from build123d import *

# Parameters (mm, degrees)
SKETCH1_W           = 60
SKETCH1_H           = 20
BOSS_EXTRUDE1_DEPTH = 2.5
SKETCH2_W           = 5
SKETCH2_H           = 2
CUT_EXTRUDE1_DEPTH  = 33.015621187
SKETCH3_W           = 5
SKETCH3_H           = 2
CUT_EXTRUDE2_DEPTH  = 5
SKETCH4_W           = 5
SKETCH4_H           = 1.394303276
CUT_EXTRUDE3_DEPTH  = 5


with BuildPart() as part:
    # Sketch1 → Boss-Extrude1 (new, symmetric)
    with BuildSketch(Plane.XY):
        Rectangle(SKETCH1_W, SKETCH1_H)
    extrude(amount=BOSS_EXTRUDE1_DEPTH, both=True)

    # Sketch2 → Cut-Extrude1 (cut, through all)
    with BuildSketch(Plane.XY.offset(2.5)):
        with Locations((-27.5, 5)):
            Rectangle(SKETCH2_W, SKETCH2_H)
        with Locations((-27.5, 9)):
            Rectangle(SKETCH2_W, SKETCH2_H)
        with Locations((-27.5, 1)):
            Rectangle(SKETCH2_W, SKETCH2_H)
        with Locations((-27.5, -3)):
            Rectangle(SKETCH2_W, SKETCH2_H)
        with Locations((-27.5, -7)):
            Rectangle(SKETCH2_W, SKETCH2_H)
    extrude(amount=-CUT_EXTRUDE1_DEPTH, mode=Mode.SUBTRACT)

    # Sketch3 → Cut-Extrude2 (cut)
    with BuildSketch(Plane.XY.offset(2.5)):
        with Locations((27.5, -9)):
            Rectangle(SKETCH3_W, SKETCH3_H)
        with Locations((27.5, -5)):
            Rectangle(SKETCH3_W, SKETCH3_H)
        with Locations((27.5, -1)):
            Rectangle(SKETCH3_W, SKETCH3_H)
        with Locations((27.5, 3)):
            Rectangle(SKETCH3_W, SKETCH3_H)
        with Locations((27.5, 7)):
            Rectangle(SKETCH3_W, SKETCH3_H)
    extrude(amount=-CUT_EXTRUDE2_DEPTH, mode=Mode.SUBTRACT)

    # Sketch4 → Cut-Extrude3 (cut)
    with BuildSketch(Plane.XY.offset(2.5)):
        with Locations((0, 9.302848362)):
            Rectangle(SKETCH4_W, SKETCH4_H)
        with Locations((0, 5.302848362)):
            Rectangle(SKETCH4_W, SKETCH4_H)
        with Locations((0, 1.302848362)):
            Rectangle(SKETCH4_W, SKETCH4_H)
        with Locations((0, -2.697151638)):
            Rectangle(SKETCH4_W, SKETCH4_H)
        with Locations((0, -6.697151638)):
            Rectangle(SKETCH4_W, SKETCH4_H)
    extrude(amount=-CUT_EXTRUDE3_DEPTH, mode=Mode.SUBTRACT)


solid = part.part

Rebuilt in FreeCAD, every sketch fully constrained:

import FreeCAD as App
import Part
import Sketcher
from FreeCAD import Vector
Q = App.Units.Quantity


def add_polygon(sketch, points):
    """Adds a closed chain of lines whose ends are joined by coincident constraints."""
    first, n = sketch.GeometryCount, len(points)
    for a, b in zip(points, points[1:] + points[:1]):
        sketch.addGeometry(Part.LineSegment(App.Vector(*a, 0), App.Vector(*b, 0)), False)
    for i in range(n):
        sketch.addConstraint(Sketcher.Constraint("Coincident", first + i, 2, first + (i + 1) % n, 1))

doc = App.newDocument("Part")
params = doc.addObject("Spreadsheet::Sheet", "Params")
for row, (alias, value) in enumerate([
    ("sketch1_width", "60 mm"),
    ("sketch1_height", "20 mm"),
    ("pad1_length", "5 mm"),
    ("sketch2_width", "5 mm"),
    ("sketch2_height", "2 mm"),
    ("sketch3_width", "5 mm"),
    ("sketch3_height", "2 mm"),
    ("pocket2_length", "5 mm"),
    ("sketch4_width", "5 mm"),
    ("pocket3_length", "5 mm"),
], start=1):
    params.set(f"A{row}", alias)
    params.set(f"B{row}", "=" + value)
    params.setAlias(f"B{row}", alias)

body = doc.addObject("PartDesign::Body", "Body")

# Sketch on XY plane
sketch1 = doc.addObject("Sketcher::SketchObject", "Sketch")
body.addObject(sketch1)
sketch1.AttachmentSupport = (doc.XY_Plane, [""])
sketch1.MapMode = "FlatFace"
add_polygon(sketch1, [(-30, 10), (-30, -10), (30, -10), (30, 10)])  # lines 0-3
sketch1.addConstraint([
    Sketcher.Constraint("Vertical", 0),
    Sketcher.Constraint("Horizontal", 1),
    Sketcher.Constraint("Vertical", 2),
    Sketcher.Constraint("Horizontal", 3),
    Sketcher.Constraint("Symmetric", 0, 2, 2, 2, -1, 1),
    Sketcher.Constraint("DistanceX", 1, 1, 1, 2, Q("60 mm")),
    Sketcher.Constraint("DistanceY", 0, 2, 0, 1, Q("20 mm")),
])
sketch1.setExpression("Constraints[9]", "Params.sketch1_width")
sketch1.setExpression("Constraints[10]", "Params.sketch1_height")
pad1 = doc.addObject("PartDesign::Pad", "Pad")
body.addObject(pad1)
pad1.Profile = sketch1
pad1.setExpression("Length", "Params.pad1_length")
pad1.Midplane = True

# Sketch on XY plane
sketch2 = doc.addObject("Sketcher::SketchObject", "Sketch001")
body.addObject(sketch2)
sketch2.AttachmentSupport = (doc.XY_Plane, [""])
sketch2.MapMode = "FlatFace"
sketch2.AttachmentOffset = App.Placement(Vector(0, 0, 2.5), App.Rotation())
add_polygon(sketch2, [(-30, 6), (-30, 4), (-25, 4), (-25, 6)])  # lines 0-3
add_polygon(sketch2, [(-30, 10), (-30, 8), (-25, 8), (-25, 10)])  # lines 4-7
add_polygon(sketch2, [(-30, 2), (-30, 0), (-25, 0), (-25, 2)])  # lines 8-11
add_polygon(sketch2, [(-30, -2), (-30, -4), (-25, -4), (-25, -2)])  # lines 12-15
add_polygon(sketch2, [(-30, -6), (-30, -8), (-25, -8), (-25, -6)])  # lines 16-19
sketch2.addConstraint([
    Sketcher.Constraint("Vertical", 0),
    Sketcher.Constraint("Horizontal", 1),
    Sketcher.Constraint("Vertical", 2),
    Sketcher.Constraint("Horizontal", 3),
    Sketcher.Constraint("Vertical", 4),
    Sketcher.Constraint("Horizontal", 5),
    Sketcher.Constraint("Vertical", 6),
    Sketcher.Constraint("Horizontal", 7),
    Sketcher.Constraint("Vertical", 8),
    Sketcher.Constraint("Horizontal", 9),
    Sketcher.Constraint("Vertical", 10),
    Sketcher.Constraint("Horizontal", 11),
    Sketcher.Constraint("Vertical", 12),
    Sketcher.Constraint("Horizontal", 13),
    Sketcher.Constraint("Vertical", 14),
    Sketcher.Constraint("Horizontal", 15),
    Sketcher.Constraint("Vertical", 16),
    Sketcher.Constraint("Horizontal", 17),
    Sketcher.Constraint("Vertical", 18),
    Sketcher.Constraint("Horizontal", 19),
    Sketcher.Constraint("Symmetric", 0, 2, 12, 2, -1),
    Sketcher.Constraint("Symmetric", 10, 2, 14, 2, -1),
    Sketcher.Constraint("Symmetric", 4, 2, 16, 2, -1),
    Sketcher.Constraint("Symmetric", 2, 2, 18, 2, -1),
    Sketcher.Constraint("PointOnObject", 8, 2, -1),
    Sketcher.Constraint("Vertical", 3, 2, 4, 2),
    Sketcher.Constraint("Vertical", 2, 2, 5, 2),
    Sketcher.Constraint("Vertical", 7, 2, 8, 2),
    Sketcher.Constraint("Vertical", 6, 2, 9, 2),
    Sketcher.Constraint("Equal", 2, 4),
    Sketcher.Constraint("Equal", 6, 8),
    Sketcher.Constraint("Equal", 10, 12),
    Sketcher.Constraint("Equal", 14, 16),
    Sketcher.Constraint("DistanceX", 1, 1, 1, 2, Q("5 mm")),
    Sketcher.Constraint("DistanceY", 0, 2, 0, 1, Q("2 mm")),
    Sketcher.Constraint("DistanceX", 0, 2, -1, 1, Q("30 mm")),
])
sketch2.setExpression("Constraints[53]", "Params.sketch2_width")
sketch2.setExpression("Constraints[54]", "Params.sketch2_height")
pocket1 = doc.addObject("PartDesign::Pocket", "Pocket")
body.addObject(pocket1)
pocket1.Profile = sketch2
pocket1.Type = "ThroughAll"

# Sketch on XY plane
sketch3 = doc.addObject("Sketcher::SketchObject", "Sketch002")
body.addObject(sketch3)
sketch3.AttachmentSupport = (doc.XY_Plane, [""])
sketch3.MapMode = "FlatFace"
sketch3.AttachmentOffset = App.Placement(Vector(0, 0, 2.5), App.Rotation())
add_polygon(sketch3, [(25, -8), (25, -10), (30, -10), (30, -8)])  # lines 0-3
add_polygon(sketch3, [(25, -4), (25, -6), (30, -6), (30, -4)])  # lines 4-7
add_polygon(sketch3, [(25, 0), (25, -2), (30, -2), (30, 0)])  # lines 8-11
add_polygon(sketch3, [(25, 4), (25, 2), (30, 2), (30, 4)])  # lines 12-15
add_polygon(sketch3, [(25, 8), (25, 6), (30, 6), (30, 8)])  # lines 16-19
sketch3.addConstraint([
    Sketcher.Constraint("Vertical", 0),
    Sketcher.Constraint("Horizontal", 1),
    Sketcher.Constraint("Vertical", 2),
    Sketcher.Constraint("Horizontal", 3),
    Sketcher.Constraint("Vertical", 4),
    Sketcher.Constraint("Horizontal", 5),
    Sketcher.Constraint("Vertical", 6),
    Sketcher.Constraint("Horizontal", 7),
    Sketcher.Constraint("Vertical", 8),
    Sketcher.Constraint("Horizontal", 9),
    Sketcher.Constraint("Vertical", 10),
    Sketcher.Constraint("Horizontal", 11),
    Sketcher.Constraint("Vertical", 12),
    Sketcher.Constraint("Horizontal", 13),
    Sketcher.Constraint("Vertical", 14),
    Sketcher.Constraint("Horizontal", 15),
    Sketcher.Constraint("Vertical", 16),
    Sketcher.Constraint("Horizontal", 17),
    Sketcher.Constraint("Vertical", 18),
    Sketcher.Constraint("Horizontal", 19),
    Sketcher.Constraint("Symmetric", 8, 2, 12, 2, -1),
    Sketcher.Constraint("Symmetric", 6, 2, 14, 2, -1),
    Sketcher.Constraint("Symmetric", 4, 2, 16, 2, -1),
    Sketcher.Constraint("Symmetric", 2, 2, 18, 2, -1),
    Sketcher.Constraint("PointOnObject", 10, 2, -1),
    Sketcher.Constraint("Vertical", 3, 2, 4, 2),
    Sketcher.Constraint("Vertical", 2, 2, 5, 2),
    Sketcher.Constraint("Vertical", 7, 2, 8, 2),
    Sketcher.Constraint("Vertical", 6, 2, 9, 2),
    Sketcher.Constraint("Equal", 2, 4),
    Sketcher.Constraint("Equal", 6, 8),
    Sketcher.Constraint("Equal", 10, 12),
    Sketcher.Constraint("Equal", 14, 16),
    Sketcher.Constraint("DistanceX", 1, 1, 1, 2, Q("5 mm")),
    Sketcher.Constraint("DistanceY", 0, 2, 0, 1, Q("2 mm")),
    Sketcher.Constraint("DistanceX", -1, 1, 0, 2, Q("25 mm")),
])
sketch3.setExpression("Constraints[53]", "Params.sketch3_width")
sketch3.setExpression("Constraints[54]", "Params.sketch3_height")
pocket2 = doc.addObject("PartDesign::Pocket", "Pocket001")
body.addObject(pocket2)
pocket2.Profile = sketch3
pocket2.setExpression("Length", "Params.pocket2_length")

# Sketch on XY plane
sketch4 = doc.addObject("Sketcher::SketchObject", "Sketch003")
body.addObject(sketch4)
sketch4.AttachmentSupport = (doc.XY_Plane, [""])
sketch4.MapMode = "FlatFace"
sketch4.AttachmentOffset = App.Placement(Vector(0, 0, 2.5), App.Rotation())
add_polygon(sketch4, [(-2.5, 10), (-2.5, 8.6), (2.5, 8.6), (2.5, 10)])  # lines 0-3
add_polygon(sketch4, [(-2.5, 6), (-2.5, 4.6), (2.5, 4.6), (2.5, 6)])  # lines 4-7
add_polygon(sketch4, [(-2.5, 2), (-2.5, 0.6), (2.5, 0.6), (2.5, 2)])  # lines 8-11
add_polygon(sketch4, [(-2.5, -2), (-2.5, -3.4), (2.5, -3.4), (2.5, -2)])  # lines 12-15
add_polygon(sketch4, [(-2.5, -6), (-2.5, -7.4), (2.5, -7.4), (2.5, -6)])  # lines 16-19
sketch4.addConstraint([
    Sketcher.Constraint("Vertical", 0),
    Sketcher.Constraint("Horizontal", 1),
    Sketcher.Constraint("Vertical", 2),
    Sketcher.Constraint("Horizontal", 3),
    Sketcher.Constraint("Vertical", 4),
    Sketcher.Constraint("Horizontal", 5),
    Sketcher.Constraint("Vertical", 6),
    Sketcher.Constraint("Horizontal", 7),
    Sketcher.Constraint("Vertical", 8),
    Sketcher.Constraint("Horizontal", 9),
    Sketcher.Constraint("Vertical", 10),
    Sketcher.Constraint("Horizontal", 11),
    Sketcher.Constraint("Vertical", 12),
    Sketcher.Constraint("Horizontal", 13),
    Sketcher.Constraint("Vertical", 14),
    Sketcher.Constraint("Horizontal", 15),
    Sketcher.Constraint("Vertical", 16),
    Sketcher.Constraint("Horizontal", 17),
    Sketcher.Constraint("Vertical", 18),
    Sketcher.Constraint("Horizontal", 19),
    Sketcher.Constraint("Symmetric", 11, 2, 14, 2, -1, 1),
    Sketcher.Constraint("Symmetric", 7, 2, 18, 2, -1, 1),
    Sketcher.Constraint("Vertical", 3, 2, 4, 2),
    Sketcher.Constraint("Vertical", 2, 2, 5, 2),
    Sketcher.Constraint("Vertical", 7, 2, 8, 2),
    Sketcher.Constraint("Vertical", 6, 2, 9, 2),
    Sketcher.Constraint("Vertical", 11, 2, 12, 2),
    Sketcher.Constraint("Vertical", 10, 2, 13, 2),
    Sketcher.Constraint("Vertical", 15, 2, 16, 2),
    Sketcher.Constraint("Equal", 2, 4),
    Sketcher.Constraint("Equal", 6, 8),
    Sketcher.Constraint("Equal", 10, 12),
    Sketcher.Constraint("Equal", 14, 16),
    Sketcher.Constraint("DistanceX", 1, 1, 1, 2, Q("5 mm")),
    Sketcher.Constraint("DistanceY", -1, 1, 2, 2, Q("10 mm")),
    Sketcher.Constraint("DistanceY", -1, 1, 6, 2, Q("6 mm")),
    Sketcher.Constraint("DistanceY", -1, 1, 10, 2, Q("2 mm")),
    Sketcher.Constraint("DistanceY", 0, 2, 0, 1, Q("1.394303 mm")),
])
sketch4.setExpression("Constraints[53]", "Params.sketch4_width")
pocket3 = doc.addObject("PartDesign::Pocket", "Pocket002")
body.addObject(pocket3)
pocket3.Profile = sketch4
pocket3.setExpression("Length", "Params.pocket3_length")

doc.recompute()
